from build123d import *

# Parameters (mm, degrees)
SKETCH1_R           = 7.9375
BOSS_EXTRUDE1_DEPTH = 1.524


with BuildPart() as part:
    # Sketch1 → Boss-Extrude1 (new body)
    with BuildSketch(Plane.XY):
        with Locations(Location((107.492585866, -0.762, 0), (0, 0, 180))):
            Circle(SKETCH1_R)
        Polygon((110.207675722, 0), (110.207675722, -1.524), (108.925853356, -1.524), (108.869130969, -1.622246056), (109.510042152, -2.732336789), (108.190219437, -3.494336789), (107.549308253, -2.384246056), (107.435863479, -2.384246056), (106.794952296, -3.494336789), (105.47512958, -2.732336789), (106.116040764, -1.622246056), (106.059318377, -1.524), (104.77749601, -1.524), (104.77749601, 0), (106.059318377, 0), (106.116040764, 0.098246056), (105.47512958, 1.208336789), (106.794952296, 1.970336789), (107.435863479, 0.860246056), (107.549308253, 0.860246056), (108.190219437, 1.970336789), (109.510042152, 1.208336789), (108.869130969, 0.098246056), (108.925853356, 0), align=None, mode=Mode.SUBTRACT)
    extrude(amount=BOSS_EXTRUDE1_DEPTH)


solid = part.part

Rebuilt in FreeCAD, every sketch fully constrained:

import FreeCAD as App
import Part
import Sketcher
Q = App.Units.Quantity

doc = App.newDocument("Part")
params = doc.addObject("Spreadsheet::Sheet", "Params")
for row, (alias, value) in enumerate([
    ("sketch1_diameter", "0.625 in"),
    ("sketch1_height", "0.06 in"),
    ("sketch1_length", "0.06 in"),
    ("pad1_length", "0.06 in"),
], start=1):
    params.set(f"A{row}", alias)
    params.set(f"B{row}", "=" + value)
    params.setAlias(f"B{row}", alias)

body = doc.addObject("PartDesign::Body", "Body")

# Sketch on XY plane
sketch1 = body.newObject("Sketcher::SketchObject", "Sketch")
sketch1.AttachmentSupport = (doc.getObject("XY_Plane"), [""])
sketch1.MapMode = "FlatFace"
sketch1.addGeometry([
    Part.Circle(App.Vector(107.49, -0.76, 0), App.Vector(0, 0, 1), 7.94),  # 0
    Part.LineSegment(App.Vector(108.93, 0, 0), App.Vector(110.21, 0, 0)),  # 1
    Part.LineSegment(App.Vector(110.21, 0, 0), App.Vector(110.21, -1.52, 0)),  # 2
    Part.LineSegment(App.Vector(110.21, -1.52, 0), App.Vector(108.93, -1.52, 0)),  # 3
    Part.LineSegment(App.Vector(108.93, -1.52, 0), App.Vector(108.87, -1.62, 0)),  # 4
    Part.LineSegment(App.Vector(108.87, -1.62, 0), App.Vector(109.51, -2.73, 0)),  # 5
    Part.LineSegment(App.Vector(109.51, -2.73, 0), App.Vector(108.19, -3.49, 0)),  # 6
    Part.LineSegment(App.Vector(108.19, -3.49, 0), App.Vector(107.55, -2.38, 0)),  # 7
    Part.LineSegment(App.Vector(107.55, -2.38, 0), App.Vector(107.44, -2.38, 0)),  # 8
    Part.LineSegment(App.Vector(107.44, -2.38, 0), App.Vector(106.79, -3.49, 0)),  # 9
    Part.LineSegment(App.Vector(106.79, -3.49, 0), App.Vector(105.48, -2.73, 0)),  # 10
    Part.LineSegment(App.Vector(105.48, -2.73, 0), App.Vector(106.12, -1.62, 0)),  # 11
    Part.LineSegment(App.Vector(106.12, -1.62, 0), App.Vector(106.06, -1.52, 0)),  # 12
    Part.LineSegment(App.Vector(106.06, -1.52, 0), App.Vector(104.78, -1.52, 0)),  # 13
    Part.LineSegment(App.Vector(104.78, -1.52, 0), App.Vector(104.78, 0, 0)),  # 14
    Part.LineSegment(App.Vector(104.78, 0, 0), App.Vector(106.06, 0, 0)),  # 15
    Part.LineSegment(App.Vector(106.06, 0, 0), App.Vector(106.12, 0.1, 0)),  # 16
    Part.LineSegment(App.Vector(106.12, 0.1, 0), App.Vector(105.48, 1.21, 0)),  # 17
    Part.LineSegment(App.Vector(105.48, 1.21, 0), App.Vector(106.79, 1.97, 0)),  # 18
    Part.LineSegment(App.Vector(106.79, 1.97, 0), App.Vector(107.44, 0.86, 0)),  # 19
    Part.LineSegment(App.Vector(107.44, 0.86, 0), App.Vector(107.55, 0.86, 0)),  # 20
    Part.LineSegment(App.Vector(107.55, 0.86, 0), App.Vector(108.19, 1.97, 0)),  # 21
    Part.LineSegment(App.Vector(108.19, 1.97, 0), App.Vector(109.51, 1.21, 0)),  # 22
    Part.LineSegment(App.Vector(109.51, 1.21, 0), App.Vector(108.87, 0.1, 0)),  # 23
    Part.LineSegment(App.Vector(108.87, 0.1, 0), App.Vector(108.93, 0, 0)),  # 24
], False)
sketch1.addConstraint([
    Sketcher.Constraint("Coincident", 1, 2, 2, 1),
    Sketcher.Constraint("Coincident", 2, 2, 3, 1),
    Sketcher.Constraint("Coincident", 3, 2, 4, 1),
    Sketcher.Constraint("Coincident", 4, 2, 5, 1),
    Sketcher.Constraint("Coincident", 5, 2, 6, 1),
    Sketcher.Constraint("Coincident", 6, 2, 7, 1),
    Sketcher.Constraint("Coincident", 7, 2, 8, 1),
    Sketcher.Constraint("Coincident", 8, 2, 9, 1),
    Sketcher.Constraint("Coincident", 9, 2, 10, 1),
    Sketcher.Constraint("Coincident", 10, 2, 11, 1),
    Sketcher.Constraint("Coincident", 11, 2, 12, 1),
    Sketcher.Constraint("Coincident", 12, 2, 13, 1),
    Sketcher.Constraint("Coincident", 13, 2, 14, 1),
    Sketcher.Constraint("Coincident", 14, 2, 15, 1),
    Sketcher.Constraint("Coincident", 15, 2, 16, 1),
    Sketcher.Constraint("Coincident", 16, 2, 17, 1),
    Sketcher.Constraint("Coincident", 17, 2, 18, 1),
    Sketcher.Constraint("Coincident", 18, 2, 19, 1),
    Sketcher.Constraint("Coincident", 19, 2, 20, 1),
    Sketcher.Constraint("Coincident", 20, 2, 21, 1),
    Sketcher.Constraint("Coincident", 21, 2, 22, 1),
    Sketcher.Constraint("Coincident", 22, 2, 23, 1),
    Sketcher.Constraint("Coincident", 23, 2, 24, 1),
    Sketcher.Constraint("Coincident", 24, 2, 1, 1),
    Sketcher.Constraint("Horizontal", 1),
    Sketcher.Constraint("Vertical", 2),
    Sketcher.Constraint("Horizontal", 3),
    Sketcher.Constraint("Horizontal", 8),
    Sketcher.Constraint("Horizontal", 13),
    Sketcher.Constraint("Vertical", 14),
    Sketcher.Constraint("Horizontal", 15),
    Sketcher.Constraint("Horizontal", 20),
    Sketcher.Constraint("PointOnObject", 1, 2, -1),
    Sketcher.Constraint("PointOnObject", 14, 2, -1),
    Sketcher.Constraint("Perpendicular", 5, 6),
    Sketcher.Constraint("Perpendicular", 6, 7),
    Sketcher.Constraint("Parallel", 4, 9),
    Sketcher.Constraint("Perpendicular", 9, 10),
    Sketcher.Constraint("Perpendicular", 10, 11),
    Sketcher.Constraint("Parallel", 7, 12),
    Sketcher.Constraint("Parallel", 11, 16),
    Sketcher.Constraint("Parallel", 12, 17),
    Sketcher.Constraint("Perpendicular", 17, 18),
    Sketcher.Constraint("Perpendicular", 18, 19),
    Sketcher.Constraint("Parallel", 16, 21),
    Sketcher.Constraint("Perpendicular", 21, 22),
    Sketcher.Constraint("Perpendicular", 22, 23),
    Sketcher.Constraint("Parallel", 19, 24),
    Sketcher.Constraint("Horizontal", 6, 2, 9, 2),
    Sketcher.Constraint("Horizontal", 5, 2, 10, 2),
    Sketcher.Constraint("Horizontal", 4, 2, 11, 2),
    Sketcher.Constraint("Horizontal", 3, 2, 12, 2),
    Sketcher.Constraint("Horizontal", 18, 2, 21, 2),
    Sketcher.Constraint("Horizontal", 17, 2, 22, 2),
    Sketcher.Constraint("Horizontal", 16, 2, 23, 2),
    Sketcher.Constraint("Vertical", 12, 2, 15, 2),
    Sketcher.Constraint("Vertical", 11, 2, 16, 2),
    Sketcher.Constraint("Vertical", 10, 2, 17, 2),
    Sketcher.Constraint("Vertical", 9, 2, 18, 2),
    Sketcher.Constraint("Vertical", 8, 2, 19, 2),
    Sketcher.Constraint("Vertical", 7, 2, 20, 2),
    Sketcher.Constraint("Vertical", 6, 2, 21, 2),
    Sketcher.Constraint("Equal", 3, 13),
    Sketcher.Constraint("Equal", 5, 7),
    Sketcher.Constraint("Diameter", 0, Q("0.625 in")),
    Sketcher.Constraint("Angle", 4, Q("-120 deg")),
    Sketcher.Constraint("DistanceY", 2, 2, 2, 1, Q("0.06 in")),
    Sketcher.Constraint("Distance", 6, Q("0.06 in")),
    Sketcher.Constraint("DistanceY", 0, 3, -1, 1, Q("0.03 in")),
    Sketcher.Constraint("DistanceX", 1, 1, 1, 2, Q("1.281822 mm")),
    Sketcher.Constraint("DistanceX", 8, 2, 8, 1, Q("0.113445 mm")),
    Sketcher.Constraint("DistanceX", -1, 1, 4, 2, Q("108.869131 mm")),
    Sketcher.Constraint("DistanceX", -1, 1, 6, 2, Q("108.190219 mm")),
    Sketcher.Constraint("DistanceX", -1, 1, 12, 2, Q("106.059318 mm")),
    Sketcher.Constraint("DistanceX", 0, 3, 1, 2, Q("2.71509 mm")),
])
sketch1.setExpression("Constraints[64]", "Params.sketch1_diameter")
sketch1.setExpression("Constraints[66]", "Params.sketch1_height")
sketch1.setExpression("Constraints[67]", "Params.sketch1_length")
pad1 = body.newObject("PartDesign::Pad", "Pad")
pad1.Profile = sketch1
pad1.setExpression("Length", "Params.pad1_length")

doc.recompute()
